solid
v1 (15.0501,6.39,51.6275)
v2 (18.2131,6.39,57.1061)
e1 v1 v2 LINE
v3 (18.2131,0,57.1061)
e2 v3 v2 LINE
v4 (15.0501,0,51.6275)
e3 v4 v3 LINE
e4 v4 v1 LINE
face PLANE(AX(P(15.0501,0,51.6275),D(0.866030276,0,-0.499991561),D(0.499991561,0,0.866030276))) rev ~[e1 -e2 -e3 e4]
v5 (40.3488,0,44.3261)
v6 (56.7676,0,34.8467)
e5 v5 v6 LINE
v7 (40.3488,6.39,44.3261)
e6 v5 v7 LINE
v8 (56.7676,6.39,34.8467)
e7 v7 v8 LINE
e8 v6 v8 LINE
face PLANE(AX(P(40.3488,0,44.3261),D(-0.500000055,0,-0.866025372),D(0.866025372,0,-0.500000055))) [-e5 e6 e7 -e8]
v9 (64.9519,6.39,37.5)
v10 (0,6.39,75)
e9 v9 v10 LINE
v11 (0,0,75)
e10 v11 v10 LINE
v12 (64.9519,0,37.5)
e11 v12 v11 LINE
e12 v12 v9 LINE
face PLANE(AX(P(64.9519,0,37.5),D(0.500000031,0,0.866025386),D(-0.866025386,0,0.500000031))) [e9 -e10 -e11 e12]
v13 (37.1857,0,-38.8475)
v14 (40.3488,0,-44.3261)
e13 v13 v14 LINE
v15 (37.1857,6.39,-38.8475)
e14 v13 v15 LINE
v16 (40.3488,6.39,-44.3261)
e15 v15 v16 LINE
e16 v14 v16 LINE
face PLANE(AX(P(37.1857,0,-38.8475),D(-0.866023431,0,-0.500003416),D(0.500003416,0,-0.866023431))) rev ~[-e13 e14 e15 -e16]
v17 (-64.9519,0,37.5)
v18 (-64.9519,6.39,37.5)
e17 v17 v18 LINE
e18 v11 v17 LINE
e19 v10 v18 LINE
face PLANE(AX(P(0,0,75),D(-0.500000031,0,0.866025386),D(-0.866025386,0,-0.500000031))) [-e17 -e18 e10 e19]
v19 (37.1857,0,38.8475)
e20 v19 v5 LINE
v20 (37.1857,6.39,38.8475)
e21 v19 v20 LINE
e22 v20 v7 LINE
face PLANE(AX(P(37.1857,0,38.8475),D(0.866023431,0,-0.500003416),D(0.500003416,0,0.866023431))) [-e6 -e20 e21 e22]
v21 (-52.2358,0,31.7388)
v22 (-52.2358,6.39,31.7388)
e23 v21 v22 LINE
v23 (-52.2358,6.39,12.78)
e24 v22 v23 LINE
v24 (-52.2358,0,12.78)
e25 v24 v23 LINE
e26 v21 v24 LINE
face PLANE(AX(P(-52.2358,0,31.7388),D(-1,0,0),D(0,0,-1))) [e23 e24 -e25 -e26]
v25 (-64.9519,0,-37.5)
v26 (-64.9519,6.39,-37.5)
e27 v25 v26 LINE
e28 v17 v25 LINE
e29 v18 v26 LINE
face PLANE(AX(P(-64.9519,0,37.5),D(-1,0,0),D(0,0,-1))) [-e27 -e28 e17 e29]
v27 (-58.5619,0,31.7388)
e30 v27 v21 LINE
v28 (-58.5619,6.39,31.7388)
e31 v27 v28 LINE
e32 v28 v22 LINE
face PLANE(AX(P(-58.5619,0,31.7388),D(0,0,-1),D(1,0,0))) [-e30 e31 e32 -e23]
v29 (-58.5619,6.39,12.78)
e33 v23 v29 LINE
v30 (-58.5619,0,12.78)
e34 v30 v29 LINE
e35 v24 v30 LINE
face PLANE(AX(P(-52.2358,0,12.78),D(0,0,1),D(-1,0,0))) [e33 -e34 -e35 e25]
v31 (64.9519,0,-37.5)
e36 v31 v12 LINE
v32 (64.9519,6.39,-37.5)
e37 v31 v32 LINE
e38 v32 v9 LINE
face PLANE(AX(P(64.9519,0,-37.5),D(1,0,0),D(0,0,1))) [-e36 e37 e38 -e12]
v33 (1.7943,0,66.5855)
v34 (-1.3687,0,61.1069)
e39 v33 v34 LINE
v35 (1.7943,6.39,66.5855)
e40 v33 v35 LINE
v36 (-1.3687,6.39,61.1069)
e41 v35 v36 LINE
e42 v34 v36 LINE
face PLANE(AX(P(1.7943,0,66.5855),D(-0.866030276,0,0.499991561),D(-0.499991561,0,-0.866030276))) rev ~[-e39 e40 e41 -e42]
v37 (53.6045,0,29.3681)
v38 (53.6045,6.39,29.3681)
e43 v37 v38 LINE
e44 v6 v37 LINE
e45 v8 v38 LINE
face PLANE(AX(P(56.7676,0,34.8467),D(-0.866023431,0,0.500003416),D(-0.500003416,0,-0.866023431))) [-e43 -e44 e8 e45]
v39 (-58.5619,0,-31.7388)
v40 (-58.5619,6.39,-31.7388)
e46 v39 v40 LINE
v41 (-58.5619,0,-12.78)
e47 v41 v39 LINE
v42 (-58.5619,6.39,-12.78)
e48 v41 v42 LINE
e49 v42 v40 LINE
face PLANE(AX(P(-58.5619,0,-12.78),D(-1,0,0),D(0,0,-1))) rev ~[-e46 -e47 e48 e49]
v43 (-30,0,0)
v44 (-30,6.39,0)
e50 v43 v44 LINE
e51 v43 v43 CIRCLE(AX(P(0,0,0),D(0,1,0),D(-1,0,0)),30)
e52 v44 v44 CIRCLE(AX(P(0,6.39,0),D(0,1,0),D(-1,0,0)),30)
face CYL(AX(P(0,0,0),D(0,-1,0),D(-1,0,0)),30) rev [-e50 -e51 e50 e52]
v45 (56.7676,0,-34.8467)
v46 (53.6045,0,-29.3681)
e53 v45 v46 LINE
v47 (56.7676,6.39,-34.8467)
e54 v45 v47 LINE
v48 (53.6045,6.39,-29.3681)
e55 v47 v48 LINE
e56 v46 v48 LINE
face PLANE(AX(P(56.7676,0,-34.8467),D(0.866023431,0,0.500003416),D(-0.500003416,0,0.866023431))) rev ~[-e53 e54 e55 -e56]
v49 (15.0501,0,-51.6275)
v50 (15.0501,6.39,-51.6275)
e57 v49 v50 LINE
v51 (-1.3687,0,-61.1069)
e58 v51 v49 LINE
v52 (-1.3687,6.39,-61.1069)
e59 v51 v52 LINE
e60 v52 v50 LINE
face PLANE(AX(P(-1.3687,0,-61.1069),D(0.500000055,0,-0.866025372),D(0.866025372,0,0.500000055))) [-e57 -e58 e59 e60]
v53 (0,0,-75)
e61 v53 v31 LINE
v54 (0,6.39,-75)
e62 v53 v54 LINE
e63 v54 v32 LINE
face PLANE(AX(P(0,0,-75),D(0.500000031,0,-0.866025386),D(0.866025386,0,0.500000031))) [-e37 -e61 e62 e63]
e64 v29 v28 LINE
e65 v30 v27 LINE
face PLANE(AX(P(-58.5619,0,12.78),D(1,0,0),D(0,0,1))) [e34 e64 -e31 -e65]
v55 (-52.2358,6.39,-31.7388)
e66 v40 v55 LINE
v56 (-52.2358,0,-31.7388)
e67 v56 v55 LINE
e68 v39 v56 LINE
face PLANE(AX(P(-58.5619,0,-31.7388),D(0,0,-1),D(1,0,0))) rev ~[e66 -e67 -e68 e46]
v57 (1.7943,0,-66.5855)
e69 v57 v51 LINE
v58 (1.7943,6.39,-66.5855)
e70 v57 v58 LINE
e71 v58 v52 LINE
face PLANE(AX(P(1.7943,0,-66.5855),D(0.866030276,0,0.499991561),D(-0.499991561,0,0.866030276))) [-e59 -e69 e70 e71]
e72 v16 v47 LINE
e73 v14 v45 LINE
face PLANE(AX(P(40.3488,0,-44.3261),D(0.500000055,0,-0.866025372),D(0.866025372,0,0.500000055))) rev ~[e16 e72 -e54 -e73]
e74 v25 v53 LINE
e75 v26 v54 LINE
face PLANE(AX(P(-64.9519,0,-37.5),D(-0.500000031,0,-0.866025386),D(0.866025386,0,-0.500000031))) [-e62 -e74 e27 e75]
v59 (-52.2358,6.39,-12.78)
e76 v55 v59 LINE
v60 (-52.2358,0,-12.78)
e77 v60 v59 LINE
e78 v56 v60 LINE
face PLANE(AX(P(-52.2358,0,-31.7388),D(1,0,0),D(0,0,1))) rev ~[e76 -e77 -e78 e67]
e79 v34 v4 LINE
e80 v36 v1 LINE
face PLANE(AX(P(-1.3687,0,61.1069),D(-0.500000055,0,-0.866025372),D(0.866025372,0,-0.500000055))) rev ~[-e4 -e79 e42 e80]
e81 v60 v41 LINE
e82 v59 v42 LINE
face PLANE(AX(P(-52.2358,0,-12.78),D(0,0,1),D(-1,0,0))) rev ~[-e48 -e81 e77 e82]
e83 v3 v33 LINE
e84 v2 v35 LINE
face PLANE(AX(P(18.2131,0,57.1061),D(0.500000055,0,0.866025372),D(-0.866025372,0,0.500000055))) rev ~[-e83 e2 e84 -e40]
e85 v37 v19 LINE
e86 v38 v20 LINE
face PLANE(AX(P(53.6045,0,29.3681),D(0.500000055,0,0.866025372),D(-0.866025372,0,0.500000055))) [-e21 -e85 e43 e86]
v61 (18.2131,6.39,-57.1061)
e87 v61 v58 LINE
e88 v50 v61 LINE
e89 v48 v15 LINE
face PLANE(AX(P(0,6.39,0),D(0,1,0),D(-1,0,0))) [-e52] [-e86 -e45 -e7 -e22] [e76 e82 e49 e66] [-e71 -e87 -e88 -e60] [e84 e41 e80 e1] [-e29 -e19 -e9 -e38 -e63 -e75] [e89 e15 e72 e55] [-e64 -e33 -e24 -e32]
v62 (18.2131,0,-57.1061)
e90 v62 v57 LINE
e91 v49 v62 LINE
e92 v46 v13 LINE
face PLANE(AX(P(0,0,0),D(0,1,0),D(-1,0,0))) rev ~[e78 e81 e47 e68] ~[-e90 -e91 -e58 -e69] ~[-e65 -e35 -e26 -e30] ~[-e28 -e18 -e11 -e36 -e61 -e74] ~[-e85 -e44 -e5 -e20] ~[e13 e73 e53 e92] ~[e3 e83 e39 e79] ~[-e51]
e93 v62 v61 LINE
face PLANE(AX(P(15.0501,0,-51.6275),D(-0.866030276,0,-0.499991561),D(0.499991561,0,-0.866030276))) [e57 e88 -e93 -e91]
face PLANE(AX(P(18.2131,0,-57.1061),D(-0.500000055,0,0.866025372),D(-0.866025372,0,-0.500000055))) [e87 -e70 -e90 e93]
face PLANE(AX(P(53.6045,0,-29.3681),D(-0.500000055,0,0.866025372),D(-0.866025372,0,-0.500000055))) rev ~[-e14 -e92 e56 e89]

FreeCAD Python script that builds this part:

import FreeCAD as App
import Part
import Sketcher
Q = App.Units.Quantity


def add_polygon(sketch, points):
    """Adds a closed chain of lines whose ends are joined by coincident constraints."""
    first, n = sketch.GeometryCount, len(points)
    for a, b in zip(points, points[1:] + points[:1]):
        sketch.addGeometry(Part.LineSegment(App.Vector(*a, 0), App.Vector(*b, 0)), False)
    for i in range(n):
        sketch.addConstraint(Sketcher.Constraint("Coincident", first + i, 2, first + (i + 1) % n, 1))

doc = App.newDocument("Part")
body = doc.addObject("PartDesign::Body", "Body")

# Sketch on XZ plane
sketch1 = doc.addObject("Sketcher::SketchObject", "Sketch")
body.addObject(sketch1)
sketch1.AttachmentSupport = (doc.XZ_Plane, [""])
sketch1.MapMode = "FlatFace"
add_polygon(sketch1, [(0, -75), (-65, -38), (-65, 38), (0, 75), (65, 38), (65, -38)])  # lines 0-5
add_polygon(sketch1, [(2, -67), (18, -57), (15, -52), (-1, -61)])  # lines 6-9
add_polygon(sketch1, [(54, -29), (37, -39), (40, -44), (57, -35)])  # lines 10-13
add_polygon(sketch1, [(-59, -13), (-59, -32), (-52, -32), (-52, -13)])  # lines 14-17
add_polygon(sketch1, [(57, 35), (40, 44), (37, 39), (54, 29)])  # lines 18-21
add_polygon(sketch1, [(-1, 61), (15, 52), (18, 57), (2, 67)])  # lines 22-25
sketch1.addGeometry(Part.Circle(App.Vector(0, 0, 0), App.Vector(0, 0, 1), 30), False)  # 26
add_polygon(sketch1, [(-52, 32), (-59, 32), (-59, 13), (-52, 13)])  # lines 27-30
sketch1.addConstraint([
    Sketcher.Constraint("Vertical", 1),
    Sketcher.Constraint("Vertical", 4),
    Sketcher.Constraint("Vertical", 14),
    Sketcher.Constraint("Horizontal", 15),
    Sketcher.Constraint("Vertical", 16),
    Sketcher.Constraint("Horizontal", 17),
    Sketcher.Constraint("Horizontal", 27),
    Sketcher.Constraint("Vertical", 28),
    Sketcher.Constraint("Horizontal", 29),
    Sketcher.Constraint("Vertical", 30),
    Sketcher.Constraint("Coincident", 26, 3, -1, 1),
    Sketcher.Constraint("Symmetric", 0, 2, 3, 2, -1, 1),
    Sketcher.Constraint("Symmetric", 2, 2, 5, 2, -1, 1),
    Sketcher.Constraint("Symmetric", 11, 2, 18, 2, -1),
    Sketcher.Constraint("Symmetric", 10, 2, 19, 2, -1),
    Sketcher.Constraint("Symmetric", 13, 2, 20, 2, -1),
    Sketcher.Constraint("Symmetric", 12, 2, 21, 2, -1),
    Sketcher.Constraint("Symmetric", 7, 2, 22, 2, -1),
    Sketcher.Constraint("Symmetric", 6, 2, 23, 2, -1),
    Sketcher.Constraint("Symmetric", 9, 2, 24, 2, -1),
    Sketcher.Constraint("Symmetric", 8, 2, 25, 2, -1),
    Sketcher.Constraint("Symmetric", 14, 2, 27, 2, -1),
    Sketcher.Constraint("Symmetric", 16, 2, 29, 2, -1),
    Sketcher.Constraint("PointOnObject", 2, 2, -2),
    Sketcher.Constraint("Parallel", 2, 5),
    Sketcher.Constraint("Parallel", 5, 6),
    Sketcher.Constraint("Perpendicular", 6, 7),
    Sketcher.Constraint("Perpendicular", 7, 8),
    Sketcher.Constraint("Perpendicular", 8, 9),
    Sketcher.Constraint("Perpendicular", 9, 10),
    Sketcher.Constraint("Perpendicular", 10, 11),
    Sketcher.Constraint("Perpendicular", 11, 12),
    Sketcher.Constraint("Perpendicular", 12, 13),
    Sketcher.Constraint("Parallel", 3, 18),
    Sketcher.Constraint("Equal", 8, 10),
    Sketcher.Constraint("Equal", 9, 11),
    Sketcher.Constraint("Diameter", 26, Q("60 mm")),
    Sketcher.Constraint("DistanceY", 1, 1, 1, 2, Q("75 mm")),
    Sketcher.Constraint("Angle", 0, Q("150 deg")),
    Sketcher.Constraint("Distance", 0, Q("75 mm")),
    Sketcher.Constraint("DistanceX", 15, 1, 15, 2, Q("6.326 mm")),
    Sketcher.Constraint("DistanceY", 16, 2, -1, 1, Q("12.78 mm")),
    Sketcher.Constraint("DistanceY", 7, 2, 10, 2, Q("12.78 mm")),
    Sketcher.Constraint("DistanceX", 0, 2, 14, 2, Q("6.39 mm")),
    Sketcher.Constraint("Distance", 7, Q("6.326 mm")),
    Sketcher.Constraint("DistanceY", 14, 2, 14, 1, Q("18.9588 mm")),
    Sketcher.Constraint("Distance", 6, Q("18.9588 mm")),
    Sketcher.Constraint("DistanceX", -1, 1, 7, 2, Q("15.05 mm")),
    Sketcher.Constraint("DistanceY", 6, 2, -1, 1, Q("57.106 mm")),
    Sketcher.Constraint("DistanceX", 11, 2, 4, 2, Q("24.603 mm")),
])
pad1 = doc.addObject("PartDesign::Pad", "Pad")
body.addObject(pad1)
pad1.Profile = sketch1
pad1.Length = 6.39
pad1.Reversed = True

doc.recompute()
